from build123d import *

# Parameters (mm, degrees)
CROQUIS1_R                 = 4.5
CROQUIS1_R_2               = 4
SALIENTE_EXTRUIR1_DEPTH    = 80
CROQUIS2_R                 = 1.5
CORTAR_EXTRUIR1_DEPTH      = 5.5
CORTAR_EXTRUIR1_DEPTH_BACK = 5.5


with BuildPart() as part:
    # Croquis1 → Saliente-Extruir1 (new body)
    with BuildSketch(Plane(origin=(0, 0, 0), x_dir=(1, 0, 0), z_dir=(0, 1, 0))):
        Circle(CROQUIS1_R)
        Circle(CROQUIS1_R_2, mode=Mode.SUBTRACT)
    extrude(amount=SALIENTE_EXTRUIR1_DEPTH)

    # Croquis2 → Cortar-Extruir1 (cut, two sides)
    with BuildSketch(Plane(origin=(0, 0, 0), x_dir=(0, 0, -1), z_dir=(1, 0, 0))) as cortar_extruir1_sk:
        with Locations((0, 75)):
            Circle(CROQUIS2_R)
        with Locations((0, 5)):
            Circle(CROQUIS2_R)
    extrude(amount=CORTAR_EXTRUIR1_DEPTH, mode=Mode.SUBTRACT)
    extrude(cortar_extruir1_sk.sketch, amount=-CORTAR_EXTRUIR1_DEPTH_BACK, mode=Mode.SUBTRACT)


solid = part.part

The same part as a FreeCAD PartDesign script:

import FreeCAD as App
import Part
import Sketcher

doc = App.newDocument("Part")
body = doc.addObject("PartDesign::Body", "Body")

# Sketch on XZ plane
sketch1 = body.newObject("Sketcher::SketchObject", "Sketch")
sketch1.AttachmentSupport = (doc.getObject("XZ_Plane"), [""])
sketch1.MapMode = "FlatFace"
sketch1.addGeometry([
    Part.Circle(App.Vector(0, 0, 0), App.Vector(0, 0, 1), 4.5),
    Part.Circle(App.Vector(0, 0, 0), App.Vector(0, 0, 1), 4),
], False)
sketch1.addConstraint([
    Sketcher.Constraint("Coincident", 0, 3, -1, 1),
    Sketcher.Constraint("Coincident", 1, 3, -1, 1),
    Sketcher.Constraint("Diameter", 0, 9.0),
    Sketcher.Constraint("Diameter", 1, 8.0),
])
pad1 = body.newObject("PartDesign::Pad", "Pad")
pad1.Profile = sketch1
pad1.Length = 80
pad1.Reversed = True

# Sketch on YZ plane
sketch2 = body.newObject("Sketcher::SketchObject", "Sketch001")
sketch2.AttachmentSupport = (doc.getObject("YZ_Plane"), [""])
sketch2.MapMode = "FlatFace"
sketch2.addGeometry([
    Part.Circle(App.Vector(75, 0, 0), App.Vector(0, 0, 1), 1.5),
    Part.Circle(App.Vector(5, 0, 0), App.Vector(0, 0, 1), 1.5),
], False)
sketch2.addConstraint([
    Sketcher.Constraint("Equal", 0, 1),
    Sketcher.Constraint("PointOnObject", 0, 3, -1),
    Sketcher.Constraint("PointOnObject", 1, 3, -1),
    Sketcher.Constraint("Diameter", 0, 3.0),
    Sketcher.Constraint("DistanceX", -1, 1, 0, 3, 75.0),
    Sketcher.Constraint("DistanceX", -1, 1, 1, 3, 5.0),
])
pocket1 = body.newObject("PartDesign::Pocket", "Pocket")
pocket1.Profile = sketch2
pocket1.Type = "ThroughAll"
pocket1.Midplane = True

doc.recompute()
